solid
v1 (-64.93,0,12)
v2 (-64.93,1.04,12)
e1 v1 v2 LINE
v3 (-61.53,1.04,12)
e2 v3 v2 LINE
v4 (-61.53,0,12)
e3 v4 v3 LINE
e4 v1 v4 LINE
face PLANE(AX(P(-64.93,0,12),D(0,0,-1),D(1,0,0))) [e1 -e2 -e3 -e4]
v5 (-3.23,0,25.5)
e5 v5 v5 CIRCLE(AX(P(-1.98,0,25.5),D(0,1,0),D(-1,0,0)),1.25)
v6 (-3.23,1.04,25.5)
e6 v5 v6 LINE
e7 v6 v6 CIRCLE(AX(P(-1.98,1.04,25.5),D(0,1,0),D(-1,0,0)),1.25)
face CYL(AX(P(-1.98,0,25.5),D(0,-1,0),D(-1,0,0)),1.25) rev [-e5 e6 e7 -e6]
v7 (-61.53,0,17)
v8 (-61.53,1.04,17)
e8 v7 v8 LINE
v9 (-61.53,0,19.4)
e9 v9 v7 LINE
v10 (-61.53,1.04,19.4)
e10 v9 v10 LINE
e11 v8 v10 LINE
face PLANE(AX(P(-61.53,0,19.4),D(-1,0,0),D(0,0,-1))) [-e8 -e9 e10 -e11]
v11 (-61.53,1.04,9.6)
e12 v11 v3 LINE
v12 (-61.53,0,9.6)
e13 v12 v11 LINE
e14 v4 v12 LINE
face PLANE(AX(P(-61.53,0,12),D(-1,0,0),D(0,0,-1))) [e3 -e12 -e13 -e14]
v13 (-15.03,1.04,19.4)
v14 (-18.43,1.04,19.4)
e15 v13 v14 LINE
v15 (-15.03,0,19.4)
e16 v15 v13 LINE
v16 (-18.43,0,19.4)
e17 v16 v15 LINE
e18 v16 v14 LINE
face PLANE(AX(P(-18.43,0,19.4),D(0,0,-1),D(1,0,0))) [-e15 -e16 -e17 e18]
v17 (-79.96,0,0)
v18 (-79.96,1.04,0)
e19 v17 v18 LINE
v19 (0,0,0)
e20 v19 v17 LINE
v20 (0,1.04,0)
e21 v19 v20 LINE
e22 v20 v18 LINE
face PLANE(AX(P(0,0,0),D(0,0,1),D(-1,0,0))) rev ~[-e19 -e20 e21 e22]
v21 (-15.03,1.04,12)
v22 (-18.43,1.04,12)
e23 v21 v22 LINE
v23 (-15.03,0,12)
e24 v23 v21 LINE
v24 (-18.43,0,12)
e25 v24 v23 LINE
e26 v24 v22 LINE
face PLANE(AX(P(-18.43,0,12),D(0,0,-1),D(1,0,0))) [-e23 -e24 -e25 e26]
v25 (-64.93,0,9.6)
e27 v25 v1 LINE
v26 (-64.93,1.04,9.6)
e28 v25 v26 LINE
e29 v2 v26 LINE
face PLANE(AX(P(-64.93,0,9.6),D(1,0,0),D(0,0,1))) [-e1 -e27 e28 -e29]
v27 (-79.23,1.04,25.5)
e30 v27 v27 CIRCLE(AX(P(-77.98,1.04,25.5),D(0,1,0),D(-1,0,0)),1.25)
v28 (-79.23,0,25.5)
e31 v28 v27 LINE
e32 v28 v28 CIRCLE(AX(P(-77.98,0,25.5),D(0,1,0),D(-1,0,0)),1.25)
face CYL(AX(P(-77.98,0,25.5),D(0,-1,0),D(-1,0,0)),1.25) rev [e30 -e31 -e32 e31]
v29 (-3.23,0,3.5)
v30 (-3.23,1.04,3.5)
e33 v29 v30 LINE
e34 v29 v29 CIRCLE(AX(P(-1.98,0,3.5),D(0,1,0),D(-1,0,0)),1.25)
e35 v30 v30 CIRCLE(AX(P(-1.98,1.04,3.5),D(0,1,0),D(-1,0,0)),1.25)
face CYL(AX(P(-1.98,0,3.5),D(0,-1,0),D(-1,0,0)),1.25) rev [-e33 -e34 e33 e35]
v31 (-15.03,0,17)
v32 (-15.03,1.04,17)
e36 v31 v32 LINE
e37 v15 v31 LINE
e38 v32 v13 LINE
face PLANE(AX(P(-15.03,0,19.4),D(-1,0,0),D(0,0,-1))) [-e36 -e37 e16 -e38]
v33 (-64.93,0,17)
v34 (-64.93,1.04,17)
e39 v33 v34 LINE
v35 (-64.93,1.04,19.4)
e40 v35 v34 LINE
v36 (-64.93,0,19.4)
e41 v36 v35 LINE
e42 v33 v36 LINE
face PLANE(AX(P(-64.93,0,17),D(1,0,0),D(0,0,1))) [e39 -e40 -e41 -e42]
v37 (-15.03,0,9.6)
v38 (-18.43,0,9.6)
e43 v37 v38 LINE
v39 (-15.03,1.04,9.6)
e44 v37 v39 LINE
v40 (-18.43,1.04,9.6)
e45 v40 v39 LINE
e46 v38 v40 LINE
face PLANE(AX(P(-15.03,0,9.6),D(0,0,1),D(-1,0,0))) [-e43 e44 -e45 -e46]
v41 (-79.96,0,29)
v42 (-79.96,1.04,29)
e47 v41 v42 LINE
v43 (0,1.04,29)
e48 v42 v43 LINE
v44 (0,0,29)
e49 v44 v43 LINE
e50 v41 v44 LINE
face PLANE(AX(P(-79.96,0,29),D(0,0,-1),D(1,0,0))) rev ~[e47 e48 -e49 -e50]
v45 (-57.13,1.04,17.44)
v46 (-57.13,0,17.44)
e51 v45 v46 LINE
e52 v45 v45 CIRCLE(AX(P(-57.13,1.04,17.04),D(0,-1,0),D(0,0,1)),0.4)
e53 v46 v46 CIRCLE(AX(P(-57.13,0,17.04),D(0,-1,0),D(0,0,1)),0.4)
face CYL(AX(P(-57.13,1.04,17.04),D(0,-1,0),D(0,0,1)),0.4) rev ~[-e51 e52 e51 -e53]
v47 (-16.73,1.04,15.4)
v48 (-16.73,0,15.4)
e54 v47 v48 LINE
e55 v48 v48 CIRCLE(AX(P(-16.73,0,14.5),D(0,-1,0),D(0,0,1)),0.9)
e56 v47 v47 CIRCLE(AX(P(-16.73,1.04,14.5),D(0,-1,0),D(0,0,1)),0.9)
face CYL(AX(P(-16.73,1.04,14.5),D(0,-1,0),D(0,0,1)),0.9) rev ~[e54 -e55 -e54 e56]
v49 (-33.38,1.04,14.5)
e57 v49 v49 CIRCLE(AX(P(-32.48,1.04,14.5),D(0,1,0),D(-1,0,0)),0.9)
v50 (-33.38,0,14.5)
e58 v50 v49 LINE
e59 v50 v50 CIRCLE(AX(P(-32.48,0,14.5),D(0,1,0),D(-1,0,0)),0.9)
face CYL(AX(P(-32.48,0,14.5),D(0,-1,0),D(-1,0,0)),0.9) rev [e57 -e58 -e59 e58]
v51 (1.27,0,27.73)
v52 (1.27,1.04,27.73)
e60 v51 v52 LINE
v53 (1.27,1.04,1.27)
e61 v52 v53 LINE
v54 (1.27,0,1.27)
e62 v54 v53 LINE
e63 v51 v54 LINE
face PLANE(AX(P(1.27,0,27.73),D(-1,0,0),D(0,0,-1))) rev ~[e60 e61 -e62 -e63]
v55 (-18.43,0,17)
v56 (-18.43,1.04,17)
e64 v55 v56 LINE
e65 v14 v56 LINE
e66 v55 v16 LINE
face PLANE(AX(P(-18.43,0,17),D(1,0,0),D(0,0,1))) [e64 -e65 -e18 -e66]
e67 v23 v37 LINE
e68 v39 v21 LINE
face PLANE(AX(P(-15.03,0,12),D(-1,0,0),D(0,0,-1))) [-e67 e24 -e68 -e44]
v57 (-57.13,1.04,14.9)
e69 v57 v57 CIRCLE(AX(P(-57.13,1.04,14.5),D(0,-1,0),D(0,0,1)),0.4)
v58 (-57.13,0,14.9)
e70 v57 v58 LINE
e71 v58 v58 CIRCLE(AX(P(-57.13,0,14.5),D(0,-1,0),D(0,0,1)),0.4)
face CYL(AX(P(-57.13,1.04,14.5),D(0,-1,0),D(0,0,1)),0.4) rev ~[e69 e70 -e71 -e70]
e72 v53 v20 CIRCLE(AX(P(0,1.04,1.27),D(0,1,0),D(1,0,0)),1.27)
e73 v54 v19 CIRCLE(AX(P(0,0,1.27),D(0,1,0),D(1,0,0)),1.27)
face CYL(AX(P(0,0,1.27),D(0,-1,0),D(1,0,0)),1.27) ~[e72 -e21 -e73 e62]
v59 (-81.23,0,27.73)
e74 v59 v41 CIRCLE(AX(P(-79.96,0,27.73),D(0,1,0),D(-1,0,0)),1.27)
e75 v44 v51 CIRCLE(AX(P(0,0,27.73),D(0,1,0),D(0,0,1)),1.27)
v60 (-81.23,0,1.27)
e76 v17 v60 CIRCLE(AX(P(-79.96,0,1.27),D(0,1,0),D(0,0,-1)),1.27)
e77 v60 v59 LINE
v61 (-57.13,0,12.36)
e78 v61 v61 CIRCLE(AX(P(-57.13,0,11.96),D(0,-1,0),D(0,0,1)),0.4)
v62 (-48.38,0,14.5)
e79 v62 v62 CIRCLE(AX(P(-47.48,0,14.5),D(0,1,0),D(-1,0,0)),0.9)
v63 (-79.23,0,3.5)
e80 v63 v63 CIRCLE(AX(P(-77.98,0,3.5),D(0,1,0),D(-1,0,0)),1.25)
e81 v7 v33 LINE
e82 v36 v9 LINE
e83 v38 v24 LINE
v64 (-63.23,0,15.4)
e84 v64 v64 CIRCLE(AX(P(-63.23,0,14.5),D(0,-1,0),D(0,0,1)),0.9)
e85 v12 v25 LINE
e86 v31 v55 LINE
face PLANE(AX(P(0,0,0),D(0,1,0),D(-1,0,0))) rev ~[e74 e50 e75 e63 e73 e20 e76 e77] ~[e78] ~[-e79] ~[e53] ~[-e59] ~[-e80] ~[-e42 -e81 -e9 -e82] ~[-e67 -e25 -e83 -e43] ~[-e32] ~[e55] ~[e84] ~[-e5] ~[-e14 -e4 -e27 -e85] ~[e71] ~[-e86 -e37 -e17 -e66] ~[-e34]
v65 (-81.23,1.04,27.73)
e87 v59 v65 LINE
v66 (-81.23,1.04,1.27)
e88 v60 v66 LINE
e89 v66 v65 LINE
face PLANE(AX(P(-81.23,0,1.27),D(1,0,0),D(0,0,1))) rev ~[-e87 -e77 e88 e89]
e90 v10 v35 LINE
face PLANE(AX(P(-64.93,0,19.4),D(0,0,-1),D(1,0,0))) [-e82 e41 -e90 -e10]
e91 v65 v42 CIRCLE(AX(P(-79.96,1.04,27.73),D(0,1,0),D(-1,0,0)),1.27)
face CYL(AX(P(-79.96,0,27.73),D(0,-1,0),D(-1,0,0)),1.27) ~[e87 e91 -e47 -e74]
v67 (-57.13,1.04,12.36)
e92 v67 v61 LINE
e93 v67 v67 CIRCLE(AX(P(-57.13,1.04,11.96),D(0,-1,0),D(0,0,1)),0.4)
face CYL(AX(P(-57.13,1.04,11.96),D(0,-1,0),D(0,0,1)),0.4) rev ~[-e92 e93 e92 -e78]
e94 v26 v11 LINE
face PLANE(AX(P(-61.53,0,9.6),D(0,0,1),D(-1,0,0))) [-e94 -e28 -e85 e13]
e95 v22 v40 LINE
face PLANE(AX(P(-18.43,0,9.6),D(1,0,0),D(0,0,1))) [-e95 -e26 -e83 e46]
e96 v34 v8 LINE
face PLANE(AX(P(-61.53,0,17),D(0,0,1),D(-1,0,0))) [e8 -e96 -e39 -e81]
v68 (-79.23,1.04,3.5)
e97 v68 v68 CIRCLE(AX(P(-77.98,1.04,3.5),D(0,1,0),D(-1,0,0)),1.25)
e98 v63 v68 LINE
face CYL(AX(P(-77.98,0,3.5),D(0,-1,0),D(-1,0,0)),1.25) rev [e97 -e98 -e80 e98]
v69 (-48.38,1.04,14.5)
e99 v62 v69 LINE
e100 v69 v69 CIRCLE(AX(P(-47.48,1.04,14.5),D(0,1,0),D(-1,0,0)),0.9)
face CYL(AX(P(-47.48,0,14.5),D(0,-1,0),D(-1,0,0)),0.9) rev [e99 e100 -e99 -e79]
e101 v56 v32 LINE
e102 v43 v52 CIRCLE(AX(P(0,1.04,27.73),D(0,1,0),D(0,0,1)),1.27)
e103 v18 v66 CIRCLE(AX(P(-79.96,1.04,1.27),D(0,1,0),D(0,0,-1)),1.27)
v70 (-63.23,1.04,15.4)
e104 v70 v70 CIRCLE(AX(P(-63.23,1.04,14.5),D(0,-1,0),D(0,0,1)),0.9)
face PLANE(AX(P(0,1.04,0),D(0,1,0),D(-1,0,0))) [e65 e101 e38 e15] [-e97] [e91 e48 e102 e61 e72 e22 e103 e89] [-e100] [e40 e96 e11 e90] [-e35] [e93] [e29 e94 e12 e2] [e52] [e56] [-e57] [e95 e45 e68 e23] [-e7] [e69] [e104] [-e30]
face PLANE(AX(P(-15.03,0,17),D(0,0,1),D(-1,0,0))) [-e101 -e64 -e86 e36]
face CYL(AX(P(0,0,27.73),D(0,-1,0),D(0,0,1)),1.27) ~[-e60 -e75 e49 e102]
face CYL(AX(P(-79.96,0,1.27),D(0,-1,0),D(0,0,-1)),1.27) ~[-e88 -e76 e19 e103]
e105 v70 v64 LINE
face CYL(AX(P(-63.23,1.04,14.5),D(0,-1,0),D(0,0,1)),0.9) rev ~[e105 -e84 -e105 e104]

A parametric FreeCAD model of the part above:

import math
import FreeCAD as App
import Part
import Sketcher

V = App.Vector
Q = App.Units.Quantity


def add_polygon(sketch, points):
    """Adds a closed chain of lines whose ends are joined by coincident constraints."""
    first, n = sketch.GeometryCount, len(points)
    for a, b in zip(points, points[1:] + points[:1]):
        sketch.addGeometry(Part.LineSegment(App.Vector(*a, 0), App.Vector(*b, 0)), False)
    for i in range(n):
        sketch.addConstraint(Sketcher.Constraint("Coincident", first + i, 2, first + (i + 1) % n, 1))

doc = App.newDocument("Part")
body = doc.addObject("PartDesign::Body", "Body")

sketch1 = doc.addObject("Sketcher::SketchObject", "Sketch")
body.addObject(sketch1)
sketch1.AttachmentSupport = (doc.XZ_Plane, [""])
sketch1.MapMode = "FlatFace"
sketch1.addGeometry([
    Part.LineSegment(V(1.27, 27.73, 0), V(1.27, 1.27, 0)),
    Part.ArcOfCircle(Part.Circle(V(0, 1.27, 0), V(0, 0, 1), 1.27), math.radians(-90), math.radians(0)),
    Part.LineSegment(V(0, 0, 0), V(-79.96, 0, 0)),
    Part.ArcOfCircle(Part.Circle(V(-79.96, 1.27, 0), V(0, 0, 1), 1.27), math.radians(180), math.radians(270)),
    Part.LineSegment(V(-81.23, 1.27, 0), V(-81.23, 27.73, 0)),
    Part.ArcOfCircle(Part.Circle(V(-79.96, 27.73, 0), V(0, 0, 1), 1.27), math.radians(90), math.radians(180)),
    Part.LineSegment(V(-79.96, 29, 0), V(0, 29, 0)),
    Part.ArcOfCircle(Part.Circle(V(0, 27.73, 0), V(0, 0, 1), 1.27), math.radians(0), math.radians(90)),
    Part.Circle(V(-1.98, 3.5, 0), V(0, 0, 1), 1.25),
    Part.Circle(V(-32.48, 14.5, 0), V(0, 0, 1), 0.9),
    Part.Circle(V(-77.98, 3.5, 0), V(0, 0, 1), 1.25),
    Part.Circle(V(-47.48, 14.5, 0), V(0, 0, 1), 0.9),
    Part.Circle(V(-1.98, 25.5, 0), V(0, 0, 1), 1.25),
    Part.Circle(V(-77.98, 25.5, 0), V(0, 0, 1), 1.25),
], False)
sketch1.addConstraint([
    Sketcher.Constraint("Tangent", 0, 2, 1, 2),
    Sketcher.Constraint("Tangent", 1, 1, 2, 1),
    Sketcher.Constraint("Tangent", 2, 2, 3, 2),
    Sketcher.Constraint("Tangent", 3, 1, 4, 1),
    Sketcher.Constraint("Tangent", 4, 2, 5, 2),
    Sketcher.Constraint("Tangent", 5, 1, 6, 1),
    Sketcher.Constraint("Tangent", 6, 2, 7, 2),
    Sketcher.Constraint("Tangent", 7, 1, 0, 1),
    Sketcher.Constraint("Vertical", 0),
    Sketcher.Constraint("Horizontal", 2),
    Sketcher.Constraint("Vertical", 4),
    Sketcher.Constraint("Horizontal", 6),
    Sketcher.Constraint("Coincident", 1, 1, -1, 1),
    Sketcher.Constraint("Equal", 1, 3),
    Sketcher.Constraint("Equal", 3, 5),
    Sketcher.Constraint("Equal", 5, 7),
    Sketcher.Constraint("Equal", 8, 10),
    Sketcher.Constraint("Equal", 9, 11),
    Sketcher.Constraint("Equal", 10, 12),
    Sketcher.Constraint("Equal", 12, 13),
    Sketcher.Constraint("Horizontal", 8, 3, 10, 3),
    Sketcher.Constraint("Horizontal", 9, 3, 11, 3),
    Sketcher.Constraint("Horizontal", 12, 3, 13, 3),
    Sketcher.Constraint("Vertical", 8, 3, 12, 3),
    Sketcher.Constraint("Vertical", 10, 3, 13, 3),
    Sketcher.Constraint("Diameter", 8, Q("2.5 mm")),
    Sketcher.Constraint("Diameter", 9, Q("1.8 mm")),
    Sketcher.Constraint("Radius", 1, Q("1.27 mm")),
    Sketcher.Constraint("DistanceY", -1, 1, 5, 1, Q("29 mm")),
    Sketcher.Constraint("DistanceY", 8, 3, 9, 3, Q("11 mm")),
    Sketcher.Constraint("DistanceX", 10, 3, 8, 3, Q("76 mm")),
    Sketcher.Constraint("DistanceX", 11, 3, 9, 3, Q("15 mm")),
    Sketcher.Constraint("DistanceY", 8, 3, 12, 3, Q("22 mm")),
    Sketcher.Constraint("DistanceX", 2, 2, 2, 1, Q("79.96 mm")),
    Sketcher.Constraint("DistanceY", -1, 1, 8, 3, Q("3.5 mm")),
    Sketcher.Constraint("DistanceX", 9, 3, 8, 3, Q("30.5 mm")),
    Sketcher.Constraint("DistanceX", 8, 3, -1, 1, Q("1.98 mm")),
])
pad1 = doc.addObject("PartDesign::Pad", "Pad")
body.addObject(pad1)
pad1.Profile = sketch1
pad1.Length = 1.04
pad1.Reversed = True

sketch2 = doc.addObject("Sketcher::SketchObject", "Sketch001")
body.addObject(sketch2)
sketch2.AttachmentSupport = (doc.XZ_Plane, [""])
sketch2.MapMode = "FlatFace"
sketch2.AttachmentOffset = App.Placement(V(0, 0, -1.04), App.Rotation())
sketch2.addGeometry([
    Part.Circle(V(-63.23, 14.5, 0), V(0, 0, 1), 0.9),
    Part.Circle(V(-16.73, 14.5, 0), V(0, 0, 1), 0.9),
], False)
sketch2.addConstraint([
    Sketcher.Constraint("Equal", 0, 1),
    Sketcher.Constraint("Horizontal", 0, 3, 1, 3),
    Sketcher.Constraint("Diameter", 0, Q("1.8 mm")),
    Sketcher.Constraint("DistanceY", -1, 1, 0, 3, Q("14.5 mm")),
    Sketcher.Constraint("DistanceX", 0, 3, 1, 3, Q("46.5 mm")),
    Sketcher.Constraint("DistanceX", 0, 3, -1, 1, Q("63.23 mm")),
])
doc.recompute()
hole = doc.addObject("PartDesign::Hole", "Hole")
body.addObject(hole)
hole.Profile = sketch2
hole.ThreadType = "None"
hole.Diameter = 1.8
hole.DepthType = "ThroughAll"
hole.Reversed = True

sketch3 = doc.addObject("Sketcher::SketchObject", "Sketch002")
body.addObject(sketch3)
sketch3.AttachmentSupport = (doc.XZ_Plane, [""])
sketch3.MapMode = "FlatFace"
sketch3.AttachmentOffset = App.Placement(V(0, 0, -1.04), App.Rotation())
sketch3.addGeometry([
    Part.Circle(V(-57.13, 17.04, 0), V(0, 0, 1), 0.4),
    Part.Circle(V(-57.13, 14.5, 0), V(0, 0, 1), 0.4),
    Part.Circle(V(-57.13, 11.96, 0), V(0, 0, 1), 0.4),
], False)
sketch3.addConstraint([
    Sketcher.Constraint("Equal", 0, 1),
    Sketcher.Constraint("Equal", 1, 2),
    Sketcher.Constraint("Vertical", 0, 3, 1, 3),
    Sketcher.Constraint("Vertical", 1, 3, 2, 3),
    Sketcher.Constraint("Diameter", 0, Q("0.8 mm")),
    Sketcher.Constraint("DistanceY", -1, 1, 1, 3, Q("14.5 mm")),
    Sketcher.Constraint("DistanceX", 0, 3, -1, 1, Q("57.13 mm")),
    Sketcher.Constraint("DistanceY", -1, 1, 0, 3, Q("17.04 mm")),
    Sketcher.Constraint("DistanceY", -1, 1, 2, 3, Q("11.96 mm")),
])
doc.recompute()
hole2 = doc.addObject("PartDesign::Hole", "Hole001")
body.addObject(hole2)
hole2.Profile = sketch3
hole2.ThreadType = "None"
hole2.Diameter = 0.8
hole2.DepthType = "ThroughAll"
hole2.Reversed = True

sketch4 = doc.addObject("Sketcher::SketchObject", "Sketch003")
body.addObject(sketch4)
sketch4.AttachmentSupport = (doc.XZ_Plane, [""])
sketch4.MapMode = "FlatFace"
add_polygon(sketch4, [(-18.43, 9.6), (-15.03, 9.6), (-15.03, 12), (-18.43, 12)])
add_polygon(sketch4, [(-18.43, 17), (-15.03, 17), (-15.03, 19.4), (-18.43, 19.4)])
add_polygon(sketch4, [(-64.93, 9.6), (-61.53, 9.6), (-61.53, 12), (-64.93, 12)])
add_polygon(sketch4, [(-64.93, 17), (-61.53, 17), (-61.53, 19.4), (-64.93, 19.4)])
sketch4.addConstraint([
    Sketcher.Constraint("Horizontal", 0),
    Sketcher.Constraint("Vertical", 1),
    Sketcher.Constraint("Horizontal", 2),
    Sketcher.Constraint("Vertical", 3),
    Sketcher.Constraint("Horizontal", 4),
    Sketcher.Constraint("Vertical", 5),
    Sketcher.Constraint("Horizontal", 6),
    Sketcher.Constraint("Vertical", 7),
    Sketcher.Constraint("Horizontal", 8),
    Sketcher.Constraint("Vertical", 9),
    Sketcher.Constraint("Horizontal", 10),
    Sketcher.Constraint("Vertical", 11),
    Sketcher.Constraint("Horizontal", 12),
    Sketcher.Constraint("Vertical", 13),
    Sketcher.Constraint("Horizontal", 14),
    Sketcher.Constraint("Vertical", 15),
    Sketcher.Constraint("Horizontal", 3, 2, 8, 2),
    Sketcher.Constraint("Horizontal", 2, 2, 9, 2),
    Sketcher.Constraint("Horizontal", 7, 2, 12, 2),
    Sketcher.Constraint("Horizontal", 6, 2, 13, 2),
    Sketcher.Constraint("Vertical", 1, 2, 4, 2),
    Sketcher.Constraint("Vertical", 3, 2, 6, 2),
    Sketcher.Constraint("Vertical", 9, 2, 12, 2),
    Sketcher.Constraint("Vertical", 11, 2, 14, 2),
    Sketcher.Constraint("Equal", 6, 8),
    Sketcher.Constraint("Equal", 3, 5),
    Sketcher.Constraint("DistanceX", 0, 1, 0, 2, Q("3.4 mm")),
    Sketcher.Constraint("DistanceY", 1, 1, 1, 2, Q("2.4 mm")),
    Sketcher.Constraint("DistanceY", -1, 1, 0, 2, Q("9.6 mm")),
    Sketcher.Constraint("DistanceY", -1, 1, 4, 2, Q("17 mm")),
    Sketcher.Constraint("DistanceX", 8, 2, 3, 2, Q("43.1 mm")),
    Sketcher.Constraint("DistanceX", 0, 2, -1, 1, Q("15.03 mm")),
])
pocket1 = doc.addObject("PartDesign::Pocket", "Pocket")
body.addObject(pocket1)
pocket1.Profile = sketch4
pocket1.Type = "ThroughAll"

doc.recompute()
